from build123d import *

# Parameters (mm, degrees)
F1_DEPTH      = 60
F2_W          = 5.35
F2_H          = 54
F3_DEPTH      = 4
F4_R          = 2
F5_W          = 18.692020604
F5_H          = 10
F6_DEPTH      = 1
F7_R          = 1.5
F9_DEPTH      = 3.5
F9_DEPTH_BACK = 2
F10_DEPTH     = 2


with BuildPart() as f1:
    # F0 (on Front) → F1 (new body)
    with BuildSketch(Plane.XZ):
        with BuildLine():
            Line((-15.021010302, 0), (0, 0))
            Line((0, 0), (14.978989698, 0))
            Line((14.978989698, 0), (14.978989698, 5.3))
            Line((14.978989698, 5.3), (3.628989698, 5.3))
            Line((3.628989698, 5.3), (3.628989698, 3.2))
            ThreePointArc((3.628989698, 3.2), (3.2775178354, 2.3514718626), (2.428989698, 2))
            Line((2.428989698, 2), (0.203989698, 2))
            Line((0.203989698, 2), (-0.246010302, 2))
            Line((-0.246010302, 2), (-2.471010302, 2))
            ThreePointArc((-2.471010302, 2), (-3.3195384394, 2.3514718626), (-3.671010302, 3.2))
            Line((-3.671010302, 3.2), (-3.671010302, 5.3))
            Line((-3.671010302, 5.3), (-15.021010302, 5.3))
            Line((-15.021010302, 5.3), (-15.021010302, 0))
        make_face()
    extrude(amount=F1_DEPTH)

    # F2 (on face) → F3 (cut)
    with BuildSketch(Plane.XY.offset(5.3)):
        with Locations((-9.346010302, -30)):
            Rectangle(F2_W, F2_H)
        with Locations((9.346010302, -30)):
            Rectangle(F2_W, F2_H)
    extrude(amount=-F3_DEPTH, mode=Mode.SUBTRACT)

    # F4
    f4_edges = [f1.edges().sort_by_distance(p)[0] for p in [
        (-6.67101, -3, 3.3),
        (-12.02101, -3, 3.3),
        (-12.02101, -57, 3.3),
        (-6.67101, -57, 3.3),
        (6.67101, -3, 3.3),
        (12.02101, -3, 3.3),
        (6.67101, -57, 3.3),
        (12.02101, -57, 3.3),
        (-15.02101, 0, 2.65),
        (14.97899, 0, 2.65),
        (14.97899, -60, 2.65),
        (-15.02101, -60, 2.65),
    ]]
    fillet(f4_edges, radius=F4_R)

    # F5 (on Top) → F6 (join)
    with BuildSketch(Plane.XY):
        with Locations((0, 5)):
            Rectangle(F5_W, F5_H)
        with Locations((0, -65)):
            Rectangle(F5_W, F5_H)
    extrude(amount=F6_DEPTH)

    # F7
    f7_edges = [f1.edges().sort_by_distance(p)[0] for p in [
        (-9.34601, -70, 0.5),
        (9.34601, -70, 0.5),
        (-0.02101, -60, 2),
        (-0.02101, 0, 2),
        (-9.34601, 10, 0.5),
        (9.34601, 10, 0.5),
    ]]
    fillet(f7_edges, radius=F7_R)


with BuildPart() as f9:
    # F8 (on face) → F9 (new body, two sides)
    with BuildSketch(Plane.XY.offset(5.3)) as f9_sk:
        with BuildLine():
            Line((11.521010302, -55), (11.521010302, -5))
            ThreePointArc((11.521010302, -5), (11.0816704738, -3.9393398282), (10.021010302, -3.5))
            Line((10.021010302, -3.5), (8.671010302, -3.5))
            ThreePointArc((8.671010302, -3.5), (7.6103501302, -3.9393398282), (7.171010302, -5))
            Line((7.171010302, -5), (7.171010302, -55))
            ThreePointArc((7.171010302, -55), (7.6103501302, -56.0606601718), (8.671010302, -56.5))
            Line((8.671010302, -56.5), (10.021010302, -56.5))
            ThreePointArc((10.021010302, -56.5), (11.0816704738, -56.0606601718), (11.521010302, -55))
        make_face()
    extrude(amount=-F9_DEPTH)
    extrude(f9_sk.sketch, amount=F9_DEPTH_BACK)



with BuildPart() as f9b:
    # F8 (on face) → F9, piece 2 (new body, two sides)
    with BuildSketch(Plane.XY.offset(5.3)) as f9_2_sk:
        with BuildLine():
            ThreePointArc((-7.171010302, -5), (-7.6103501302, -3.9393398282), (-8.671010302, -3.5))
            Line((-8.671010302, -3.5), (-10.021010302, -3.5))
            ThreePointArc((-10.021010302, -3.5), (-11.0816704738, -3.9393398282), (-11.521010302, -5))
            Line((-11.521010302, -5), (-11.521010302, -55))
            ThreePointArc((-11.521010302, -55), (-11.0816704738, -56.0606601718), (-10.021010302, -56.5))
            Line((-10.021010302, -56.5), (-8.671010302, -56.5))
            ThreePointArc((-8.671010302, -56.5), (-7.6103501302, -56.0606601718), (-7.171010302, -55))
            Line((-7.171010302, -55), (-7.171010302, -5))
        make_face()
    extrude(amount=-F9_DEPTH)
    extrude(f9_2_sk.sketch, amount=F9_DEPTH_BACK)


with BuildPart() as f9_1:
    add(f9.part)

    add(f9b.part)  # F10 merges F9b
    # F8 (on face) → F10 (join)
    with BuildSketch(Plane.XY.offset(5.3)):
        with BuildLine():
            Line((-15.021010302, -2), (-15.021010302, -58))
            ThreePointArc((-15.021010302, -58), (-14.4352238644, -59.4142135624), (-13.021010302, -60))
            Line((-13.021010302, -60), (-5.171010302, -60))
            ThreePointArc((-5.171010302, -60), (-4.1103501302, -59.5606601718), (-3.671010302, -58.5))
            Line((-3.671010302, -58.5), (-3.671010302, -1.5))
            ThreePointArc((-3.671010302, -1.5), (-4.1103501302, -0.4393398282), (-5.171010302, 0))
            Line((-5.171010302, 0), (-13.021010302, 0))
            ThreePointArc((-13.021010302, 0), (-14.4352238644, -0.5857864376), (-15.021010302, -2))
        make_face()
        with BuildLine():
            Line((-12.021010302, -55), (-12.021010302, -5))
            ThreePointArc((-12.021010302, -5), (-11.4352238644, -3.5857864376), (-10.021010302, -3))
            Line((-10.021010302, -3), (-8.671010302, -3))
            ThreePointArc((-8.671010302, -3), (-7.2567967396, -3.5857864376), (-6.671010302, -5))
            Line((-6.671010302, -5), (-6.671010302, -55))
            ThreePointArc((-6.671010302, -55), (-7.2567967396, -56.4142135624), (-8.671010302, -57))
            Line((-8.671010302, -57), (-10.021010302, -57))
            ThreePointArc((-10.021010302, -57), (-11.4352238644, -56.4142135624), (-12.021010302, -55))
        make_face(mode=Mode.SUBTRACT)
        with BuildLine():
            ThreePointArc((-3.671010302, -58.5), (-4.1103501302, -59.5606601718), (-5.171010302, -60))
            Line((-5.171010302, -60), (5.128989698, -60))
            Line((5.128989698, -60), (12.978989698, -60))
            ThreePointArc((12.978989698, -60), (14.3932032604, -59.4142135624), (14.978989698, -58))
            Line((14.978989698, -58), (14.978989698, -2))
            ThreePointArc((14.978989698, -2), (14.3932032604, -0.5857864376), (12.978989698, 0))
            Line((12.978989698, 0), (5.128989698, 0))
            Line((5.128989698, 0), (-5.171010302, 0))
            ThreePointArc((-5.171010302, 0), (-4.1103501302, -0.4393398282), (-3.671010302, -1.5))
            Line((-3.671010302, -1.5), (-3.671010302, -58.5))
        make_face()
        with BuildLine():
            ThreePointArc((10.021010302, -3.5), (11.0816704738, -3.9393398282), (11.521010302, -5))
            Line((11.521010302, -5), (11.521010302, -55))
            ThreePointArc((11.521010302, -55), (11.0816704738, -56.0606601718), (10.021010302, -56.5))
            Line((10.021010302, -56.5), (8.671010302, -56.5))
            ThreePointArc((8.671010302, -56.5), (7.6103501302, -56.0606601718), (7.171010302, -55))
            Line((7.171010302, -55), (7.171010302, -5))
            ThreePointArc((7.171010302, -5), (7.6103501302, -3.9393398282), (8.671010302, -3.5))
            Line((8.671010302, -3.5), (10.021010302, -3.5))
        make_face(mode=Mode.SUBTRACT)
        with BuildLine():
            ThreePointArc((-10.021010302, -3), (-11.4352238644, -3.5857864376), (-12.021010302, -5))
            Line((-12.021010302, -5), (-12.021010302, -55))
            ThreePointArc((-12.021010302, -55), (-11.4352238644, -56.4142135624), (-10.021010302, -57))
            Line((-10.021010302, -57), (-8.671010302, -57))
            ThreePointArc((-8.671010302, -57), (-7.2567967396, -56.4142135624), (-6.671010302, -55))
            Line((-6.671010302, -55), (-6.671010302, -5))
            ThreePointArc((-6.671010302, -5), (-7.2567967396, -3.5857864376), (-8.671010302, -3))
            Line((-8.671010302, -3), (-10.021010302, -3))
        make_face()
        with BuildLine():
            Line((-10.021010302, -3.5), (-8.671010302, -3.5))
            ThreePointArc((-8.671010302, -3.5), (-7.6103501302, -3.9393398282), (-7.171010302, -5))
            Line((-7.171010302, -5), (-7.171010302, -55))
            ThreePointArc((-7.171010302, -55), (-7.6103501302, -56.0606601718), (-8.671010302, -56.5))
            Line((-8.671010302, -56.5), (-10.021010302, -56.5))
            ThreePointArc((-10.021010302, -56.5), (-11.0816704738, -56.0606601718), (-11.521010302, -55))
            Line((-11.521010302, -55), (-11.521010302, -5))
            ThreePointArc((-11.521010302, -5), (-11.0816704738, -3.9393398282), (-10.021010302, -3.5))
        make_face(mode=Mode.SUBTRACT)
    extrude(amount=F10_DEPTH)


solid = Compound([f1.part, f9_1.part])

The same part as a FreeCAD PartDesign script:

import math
import FreeCAD as App
import Part
import Sketcher

V = App.Vector


def edges_at(feature, points):
    """Names of the edges that pass closest to the given points."""
    edges = feature.Shape.Edges
    near = lambda p: min(range(len(edges)), key=lambda i: edges[i].distToShape(Part.Vertex(*p))[0])
    return sorted({f"Edge{near(p) + 1}" for p in points})

doc = App.newDocument("Part")
params = doc.addObject("Spreadsheet::Sheet", "Params")
for row, (alias, value) in enumerate([
    ("sketch1_radius", "1.2 mm"),
    ("sketch1_width", "30 mm"),
    ("sketch1_width2", "4.9 mm"),
    ("sketch1_height", "5.3 mm"),
    ("sketch1_height2", "2.1 mm"),
    ("pad1_length", "60 mm"),
    ("sketch2_height", "54 mm"),
    ("sketch2_width", "5.35 mm"),
    ("pocket1_length", "4 mm"),
    ("fillet_radius", "2 mm"),
    ("sketch3_height", "10 mm"),
    ("pad2_length", "1 mm"),
    ("fillet2_radius", "1.5 mm"),
    ("sketch4_radius", "1.5 mm"),
    ("sketch4_height", "50 mm"),
    ("sketch4_width", "1.35 mm"),
    ("pad3_length", "3.5 mm"),
    ("pad3_length2", "2 mm"),
    ("sketch5_radius", "1.5 mm"),
    ("sketch5_height", "50 mm"),
    ("sketch5_width", "1.35 mm"),
    ("pad4_length", "3.5 mm"),
    ("pad4_length2", "2 mm"),
    ("sketch6_radius", "2 mm"),
    ("sketch6_radius2", "1.5 mm"),
    ("sketch6_width", "26 mm"),
    ("sketch6_height", "56 mm"),
    ("sketch6_height2", "50 mm"),
    ("pad5_length", "2 mm"),
], start=1):
    params.set(f"A{row}", alias)
    params.set(f"B{row}", "=" + value)
    params.setAlias(f"B{row}", alias)

body = doc.addObject("PartDesign::Body", "Body")

# Sketch on XZ plane
sketch1 = body.newObject("Sketcher::SketchObject", "Sketch")
sketch1.AttachmentSupport = (doc.getObject("XZ_Plane"), [""])
sketch1.MapMode = "FlatFace"
sketch1.addGeometry(Part.LineSegment(V(-15.02101, 0, 0), V(14.97899, 0, 0)), False)
sketch1.addGeometry(Part.LineSegment(V(14.97899, 0, 0), V(14.97899, 5.3, 0)), False)
sketch1.addGeometry(Part.LineSegment(V(14.97899, 5.3, 0), V(3.62899, 5.3, 0)), False)
sketch1.addGeometry(Part.LineSegment(V(3.62899, 5.3, 0), V(3.62899, 3.2, 0)), False)
sketch1.addGeometry(Part.ArcOfCircle(Part.Circle(V(2.42899, 3.2, 0), V(0, 0, 1), 1.2), math.radians(-90), math.radians(0)), False)
sketch1.addGeometry(Part.LineSegment(V(2.42899, 2, 0), V(-2.47101, 2, 0)), False)
sketch1.addGeometry(Part.ArcOfCircle(Part.Circle(V(-2.47101, 3.2, 0), V(0, 0, 1), 1.2), math.radians(180), math.radians(270)), False)
sketch1.addGeometry(Part.LineSegment(V(-3.67101, 3.2, 0), V(-3.67101, 5.3, 0)), False)
sketch1.addGeometry(Part.LineSegment(V(-3.67101, 5.3, 0), V(-15.02101, 5.3, 0)), False)
sketch1.addGeometry(Part.LineSegment(V(-15.02101, 5.3, 0), V(-15.02101, 0, 0)), False)
sketch1.addConstraint(Sketcher.Constraint("Coincident", 0, 2, 1, 1))
sketch1.addConstraint(Sketcher.Constraint("Coincident", 1, 2, 2, 1))
sketch1.addConstraint(Sketcher.Constraint("Coincident", 2, 2, 3, 1))
sketch1.addConstraint(Sketcher.Constraint("Tangent", 3, 2, 4, 2))
sketch1.addConstraint(Sketcher.Constraint("Tangent", 4, 1, 5, 1))
sketch1.addConstraint(Sketcher.Constraint("Tangent", 5, 2, 6, 2))
sketch1.addConstraint(Sketcher.Constraint("Tangent", 6, 1, 7, 1))
sketch1.addConstraint(Sketcher.Constraint("Coincident", 7, 2, 8, 1))
sketch1.addConstraint(Sketcher.Constraint("Coincident", 8, 2, 9, 1))
sketch1.addConstraint(Sketcher.Constraint("Coincident", 9, 2, 0, 1))
sketch1.addConstraint(Sketcher.Constraint("Horizontal", 0))
sketch1.addConstraint(Sketcher.Constraint("Vertical", 1))
sketch1.addConstraint(Sketcher.Constraint("Horizontal", 2))
sketch1.addConstraint(Sketcher.Constraint("Vertical", 3))
sketch1.addConstraint(Sketcher.Constraint("Horizontal", 5))
sketch1.addConstraint(Sketcher.Constraint("Vertical", 7))
sketch1.addConstraint(Sketcher.Constraint("Horizontal", 8))
sketch1.addConstraint(Sketcher.Constraint("Vertical", 9))
sketch1.addConstraint(Sketcher.Constraint("Equal", 4, 6))
sketch1.addConstraint(Sketcher.Constraint("PointOnObject", 0, 2, -1))
sketch1.addConstraint(Sketcher.Constraint("Horizontal", 2, 2, 7, 2))
sketch1.addConstraint(Sketcher.Constraint("Equal", 2, 8))
sketch1.addConstraint(Sketcher.Constraint("Radius", 4, 1.2))
sketch1.addConstraint(Sketcher.Constraint("DistanceX", 0, 1, 0, 2, 30.0))
sketch1.addConstraint(Sketcher.Constraint("DistanceX", 5, 2, 5, 1, 4.9))
sketch1.addConstraint(Sketcher.Constraint("DistanceY", 1, 1, 1, 2, 5.3))
sketch1.addConstraint(Sketcher.Constraint("DistanceY", 3, 2, 3, 1, 2.1))
sketch1.addConstraint(Sketcher.Constraint("DistanceX", -1, 1, 4, 3, 2.42899))
sketch1.setExpression("Constraints[22]", "Params.sketch1_radius")
sketch1.setExpression("Constraints[23]", "Params.sketch1_width")
sketch1.setExpression("Constraints[24]", "Params.sketch1_width2")
sketch1.setExpression("Constraints[25]", "Params.sketch1_height")
sketch1.setExpression("Constraints[26]", "Params.sketch1_height2")
pad1 = body.newObject("PartDesign::Pad", "Pad")
pad1.Profile = sketch1
pad1.setExpression("Length", "Params.pad1_length")

# Sketch on XY plane
sketch2 = body.newObject("Sketcher::SketchObject", "Sketch001")
sketch2.AttachmentSupport = (doc.getObject("XY_Plane"), [""])
sketch2.MapMode = "FlatFace"
sketch2.AttachmentOffset = App.Placement(V(0, 0, 5.3), App.Rotation())
sketch2.addGeometry(Part.LineSegment(V(-12.02101, -3, 0), V(-12.02101, -57, 0)), False)
sketch2.addGeometry(Part.LineSegment(V(-12.02101, -57, 0), V(-6.67101, -57, 0)), False)
sketch2.addGeometry(Part.LineSegment(V(-6.67101, -57, 0), V(-6.67101, -3, 0)), False)
sketch2.addGeometry(Part.LineSegment(V(-6.67101, -3, 0), V(-12.02101, -3, 0)), False)
sketch2.addGeometry(Part.LineSegment(V(6.67101, -3, 0), V(6.67101, -57, 0)), False)
sketch2.addGeometry(Part.LineSegment(V(6.67101, -57, 0), V(12.02101, -57, 0)), False)
sketch2.addGeometry(Part.LineSegment(V(12.02101, -57, 0), V(12.02101, -3, 0)), False)
sketch2.addGeometry(Part.LineSegment(V(12.02101, -3, 0), V(6.67101, -3, 0)), False)
sketch2.addConstraint(Sketcher.Constraint("Coincident", 0, 2, 1, 1))
sketch2.addConstraint(Sketcher.Constraint("Coincident", 1, 2, 2, 1))
sketch2.addConstraint(Sketcher.Constraint("Coincident", 2, 2, 3, 1))
sketch2.addConstraint(Sketcher.Constraint("Coincident", 3, 2, 0, 1))
sketch2.addConstraint(Sketcher.Constraint("Coincident", 4, 2, 5, 1))
sketch2.addConstraint(Sketcher.Constraint("Coincident", 5, 2, 6, 1))
sketch2.addConstraint(Sketcher.Constraint("Coincident", 6, 2, 7, 1))
sketch2.addConstraint(Sketcher.Constraint("Coincident", 7, 2, 4, 1))
sketch2.addConstraint(Sketcher.Constraint("Vertical", 0))
sketch2.addConstraint(Sketcher.Constraint("Horizontal", 1))
sketch2.addConstraint(Sketcher.Constraint("Vertical", 2))
sketch2.addConstraint(Sketcher.Constraint("Horizontal", 3))
sketch2.addConstraint(Sketcher.Constraint("Vertical", 4))
sketch2.addConstraint(Sketcher.Constraint("Horizontal", 5))
sketch2.addConstraint(Sketcher.Constraint("Vertical", 6))
sketch2.addConstraint(Sketcher.Constraint("Horizontal", 7))
sketch2.addConstraint(Sketcher.Constraint("Symmetric", 1, 2, 4, 2, -2))
sketch2.addConstraint(Sketcher.Constraint("Symmetric", 3, 2, 6, 2, -2))
sketch2.addConstraint(Sketcher.Constraint("DistanceY", 0, 2, 0, 1, 54.0))
sketch2.addConstraint(Sketcher.Constraint("DistanceY", 0, 2, -1, 1, 57.0))
sketch2.addConstraint(Sketcher.Constraint("DistanceX", 1, 1, 1, 2, 5.35))
sketch2.addConstraint(Sketcher.Constraint("DistanceX", 0, 2, -1, 1, 12.02101))
sketch2.setExpression("Constraints[18]", "Params.sketch2_height")
sketch2.setExpression("Constraints[20]", "Params.sketch2_width")
pocket1 = body.newObject("PartDesign::Pocket", "Pocket")
pocket1.Profile = sketch2
pocket1.setExpression("Length", "Params.pocket1_length")
doc.recompute()

fillet = body.newObject("PartDesign::Fillet", "Fillet")
fillet.Base = (pocket1, edges_at(pocket1, [
    (-6.671, -3, 3.3),
    (-12.021, -3, 3.3),
    (-12.021, -57, 3.3),
    (-6.671, -57, 3.3),
    (6.671, -3, 3.3),
    (12.021, -3, 3.3),
    (6.671, -57, 3.3),
    (12.021, -57, 3.3),
    (-15.021, 0, 2.65),
    (14.979, 0, 2.65),
    (14.979, -60, 2.65),
    (-15.021, -60, 2.65),
]))
fillet.setExpression("Radius", "Params.fillet_radius")

# Sketch on XY plane
sketch3 = body.newObject("Sketcher::SketchObject", "Sketch002")
sketch3.AttachmentSupport = (doc.getObject("XY_Plane"), [""])
sketch3.MapMode = "FlatFace"
sketch3.addGeometry(Part.LineSegment(V(-9.34601, 10, 0), V(-9.34601, 0, 0)), False)
sketch3.addGeometry(Part.LineSegment(V(-9.34601, 0, 0), V(9.34601, 0, 0)), False)
sketch3.addGeometry(Part.LineSegment(V(9.34601, 0, 0), V(9.34601, 10, 0)), False)
sketch3.addGeometry(Part.LineSegment(V(9.34601, 10, 0), V(-9.34601, 10, 0)), False)
sketch3.addGeometry(Part.LineSegment(V(-9.34601, -60, 0), V(-9.34601, -70, 0)), False)
sketch3.addGeometry(Part.LineSegment(V(-9.34601, -70, 0), V(9.34601, -70, 0)), False)
sketch3.addGeometry(Part.LineSegment(V(9.34601, -70, 0), V(9.34601, -60, 0)), False)
sketch3.addGeometry(Part.LineSegment(V(9.34601, -60, 0), V(-9.34601, -60, 0)), False)
sketch3.addConstraint(Sketcher.Constraint("Coincident", 0, 2, 1, 1))
sketch3.addConstraint(Sketcher.Constraint("Coincident", 1, 2, 2, 1))
sketch3.addConstraint(Sketcher.Constraint("Coincident", 2, 2, 3, 1))
sketch3.addConstraint(Sketcher.Constraint("Coincident", 3, 2, 0, 1))
sketch3.addConstraint(Sketcher.Constraint("Coincident", 4, 2, 5, 1))
sketch3.addConstraint(Sketcher.Constraint("Coincident", 5, 2, 6, 1))
sketch3.addConstraint(Sketcher.Constraint("Coincident", 6, 2, 7, 1))
sketch3.addConstraint(Sketcher.Constraint("Coincident", 7, 2, 4, 1))
sketch3.addConstraint(Sketcher.Constraint("Vertical", 0))
sketch3.addConstraint(Sketcher.Constraint("Horizontal", 1))
sketch3.addConstraint(Sketcher.Constraint("Vertical", 2))
sketch3.addConstraint(Sketcher.Constraint("Horizontal", 3))
sketch3.addConstraint(Sketcher.Constraint("Vertical", 4))
sketch3.addConstraint(Sketcher.Constraint("Horizontal", 5))
sketch3.addConstraint(Sketcher.Constraint("Vertical", 6))
sketch3.addConstraint(Sketcher.Constraint("Horizontal", 7))
sketch3.addConstraint(Sketcher.Constraint("Symmetric", 0, 2, 1, 2, -1, 1))
sketch3.addConstraint(Sketcher.Constraint("Vertical", 3, 2, 4, 2))
sketch3.addConstraint(Sketcher.Constraint("Vertical", 2, 2, 5, 2))
sketch3.addConstraint(Sketcher.Constraint("Equal", 2, 4))
sketch3.addConstraint(Sketcher.Constraint("DistanceY", 0, 2, 0, 1, 10.0))
sketch3.addConstraint(Sketcher.Constraint("DistanceY", 4, 2, -1, 1, 70.0))
sketch3.addConstraint(Sketcher.Constraint("DistanceX", 1, 1, 1, 2, 18.692021))
sketch3.setExpression("Constraints[20]", "Params.sketch3_height")
pad2 = body.newObject("PartDesign::Pad", "Pad001")
pad2.Profile = sketch3
pad2.setExpression("Length", "Params.pad2_length")
doc.recompute()

fillet2 = body.newObject("PartDesign::Fillet", "Fillet001")
fillet2.Base = (pad2, edges_at(pad2, [
    (-9.346, -70, 0.5),
    (9.346, -70, 0.5),
    (-0.021, -60, 2),
    (-0.021, 0, 2),
    (-9.346, 10, 0.5),
    (9.346, 10, 0.5),
]))
fillet2.setExpression("Radius", "Params.fillet2_radius")
body2 = doc.addObject("PartDesign::Body", "Body001")

# Sketch on XY plane
sketch4 = body2.newObject("Sketcher::SketchObject", "Sketch003")
sketch4.AttachmentSupport = (doc.getObject("XY_Plane001"), [""])
sketch4.MapMode = "FlatFace"
sketch4.AttachmentOffset = App.Placement(V(0, 0, 5.3), App.Rotation())
sketch4.addGeometry(Part.LineSegment(V(11.52101, -55, 0), V(11.52101, -5, 0)), False)
sketch4.addGeometry(Part.ArcOfCircle(Part.Circle(V(10.02101, -5, 0), V(0, 0, 1), 1.5), math.radians(0), math.radians(90)), False)
sketch4.addGeometry(Part.LineSegment(V(10.02101, -3.5, 0), V(8.67101, -3.5, 0)), False)
sketch4.addGeometry(Part.ArcOfCircle(Part.Circle(V(8.67101, -5, 0), V(0, 0, 1), 1.5), math.radians(90), math.radians(180)), False)
sketch4.addGeometry(Part.LineSegment(V(7.17101, -5, 0), V(7.17101, -55, 0)), False)
sketch4.addGeometry(Part.ArcOfCircle(Part.Circle(V(8.67101, -55, 0), V(0, 0, 1), 1.5), math.radians(180), math.radians(270)), False)
sketch4.addGeometry(Part.LineSegment(V(8.67101, -56.5, 0), V(10.02101, -56.5, 0)), False)
sketch4.addGeometry(Part.ArcOfCircle(Part.Circle(V(10.02101, -55, 0), V(0, 0, 1), 1.5), math.radians(-90), math.radians(0)), False)
sketch4.addConstraint(Sketcher.Constraint("Tangent", 0, 2, 1, 1))
sketch4.addConstraint(Sketcher.Constraint("Tangent", 1, 2, 2, 1))
sketch4.addConstraint(Sketcher.Constraint("Tangent", 2, 2, 3, 1))
sketch4.addConstraint(Sketcher.Constraint("Tangent", 3, 2, 4, 1))
sketch4.addConstraint(Sketcher.Constraint("Tangent", 4, 2, 5, 1))
sketch4.addConstraint(Sketcher.Constraint("Tangent", 5, 2, 6, 1))
sketch4.addConstraint(Sketcher.Constraint("Tangent", 6, 2, 7, 1))
sketch4.addConstraint(Sketcher.Constraint("Tangent", 7, 2, 0, 1))
sketch4.addConstraint(Sketcher.Constraint("Vertical", 0))
sketch4.addConstraint(Sketcher.Constraint("Horizontal", 2))
sketch4.addConstraint(Sketcher.Constraint("Vertical", 4))
sketch4.addConstraint(Sketcher.Constraint("Horizontal", 6))
sketch4.addConstraint(Sketcher.Constraint("Equal", 1, 3))
sketch4.addConstraint(Sketcher.Constraint("Equal", 3, 5))
sketch4.addConstraint(Sketcher.Constraint("Equal", 5, 7))
sketch4.addConstraint(Sketcher.Constraint("Radius", 1, 1.5))
sketch4.addConstraint(Sketcher.Constraint("DistanceY", 0, 1, 0, 2, 50.0))
sketch4.addConstraint(Sketcher.Constraint("DistanceY", 1, 3, -1, 1, 5.0))
sketch4.addConstraint(Sketcher.Constraint("DistanceX", 2, 2, 2, 1, 1.35))
sketch4.addConstraint(Sketcher.Constraint("DistanceX", -1, 1, 1, 3, 10.02101))
sketch4.setExpression("Constraints[15]", "Params.sketch4_radius")
sketch4.setExpression("Constraints[16]", "Params.sketch4_height")
sketch4.setExpression("Constraints[18]", "Params.sketch4_width")
pad3 = body2.newObject("PartDesign::Pad", "Pad002")
pad3.Profile = sketch4
pad3.Type = "TwoLengths"
pad3.setExpression("Length", "Params.pad3_length")
pad3.setExpression("Length2", "Params.pad3_length2")
pad3.Reversed = True
body3 = doc.addObject("PartDesign::Body", "Body002")

# Sketch on XY plane
sketch5 = body3.newObject("Sketcher::SketchObject", "Sketch004")
sketch5.AttachmentSupport = (doc.getObject("XY_Plane002"), [""])
sketch5.MapMode = "FlatFace"
sketch5.AttachmentOffset = App.Placement(V(0, 0, 5.3), App.Rotation())
sketch5.addGeometry(Part.ArcOfCircle(Part.Circle(V(-8.67101, -5, 0), V(0, 0, 1), 1.5), math.radians(0), math.radians(90)), False)
sketch5.addGeometry(Part.LineSegment(V(-8.67101, -3.5, 0), V(-10.02101, -3.5, 0)), False)
sketch5.addGeometry(Part.ArcOfCircle(Part.Circle(V(-10.02101, -5, 0), V(0, 0, 1), 1.5), math.radians(90), math.radians(180)), False)
sketch5.addGeometry(Part.LineSegment(V(-11.52101, -5, 0), V(-11.52101, -55, 0)), False)
sketch5.addGeometry(Part.ArcOfCircle(Part.Circle(V(-10.02101, -55, 0), V(0, 0, 1), 1.5), math.radians(180), math.radians(270)), False)
sketch5.addGeometry(Part.LineSegment(V(-10.02101, -56.5, 0), V(-8.67101, -56.5, 0)), False)
sketch5.addGeometry(Part.ArcOfCircle(Part.Circle(V(-8.67101, -55, 0), V(0, 0, 1), 1.5), math.radians(-90), math.radians(0)), False)
sketch5.addGeometry(Part.LineSegment(V(-7.17101, -55, 0), V(-7.17101, -5, 0)), False)
sketch5.addConstraint(Sketcher.Constraint("Tangent", 0, 2, 1, 1))
sketch5.addConstraint(Sketcher.Constraint("Tangent", 1, 2, 2, 1))
sketch5.addConstraint(Sketcher.Constraint("Tangent", 2, 2, 3, 1))
sketch5.addConstraint(Sketcher.Constraint("Tangent", 3, 2, 4, 1))
sketch5.addConstraint(Sketcher.Constraint("Tangent", 4, 2, 5, 1))
sketch5.addConstraint(Sketcher.Constraint("Tangent", 5, 2, 6, 1))
sketch5.addConstraint(Sketcher.Constraint("Tangent", 6, 2, 7, 1))
sketch5.addConstraint(Sketcher.Constraint("Tangent", 7, 2, 0, 1))
sketch5.addConstraint(Sketcher.Constraint("Horizontal", 1))
sketch5.addConstraint(Sketcher.Constraint("Vertical", 3))
sketch5.addConstraint(Sketcher.Constraint("Horizontal", 5))
sketch5.addConstraint(Sketcher.Constraint("Vertical", 7))
sketch5.addConstraint(Sketcher.Constraint("Equal", 0, 2))
sketch5.addConstraint(Sketcher.Constraint("Equal", 2, 4))
sketch5.addConstraint(Sketcher.Constraint("Equal", 4, 6))
sketch5.addConstraint(Sketcher.Constraint("Radius", 0, 1.5))
sketch5.addConstraint(Sketcher.Constraint("DistanceY", 3, 2, 3, 1, 50.0))
sketch5.addConstraint(Sketcher.Constraint("DistanceY", 0, 3, -1, 1, 5.0))
sketch5.addConstraint(Sketcher.Constraint("DistanceX", 1, 2, 1, 1, 1.35))
sketch5.addConstraint(Sketcher.Constraint("DistanceX", 0, 3, -1, 1, 8.67101))
sketch5.setExpression("Constraints[15]", "Params.sketch5_radius")
sketch5.setExpression("Constraints[16]", "Params.sketch5_height")
sketch5.setExpression("Constraints[18]", "Params.sketch5_width")
pad4 = body3.newObject("PartDesign::Pad", "Pad003")
pad4.Profile = sketch5
pad4.Type = "TwoLengths"
pad4.setExpression("Length", "Params.pad4_length")
pad4.setExpression("Length2", "Params.pad4_length2")
pad4.Reversed = True
body2.AllowCompound = True
doc.recompute()

boolean = body2.newObject("PartDesign::Boolean", "Boolean")
boolean.Type = "Fuse"
boolean.addObjects([body3])

# Sketch on XY plane
sketch6 = body2.newObject("Sketcher::SketchObject", "Sketch005")
sketch6.AttachmentSupport = (doc.getObject("XY_Plane001"), [""])
sketch6.MapMode = "FlatFace"
sketch6.AttachmentOffset = App.Placement(V(0, 0, 5.3), App.Rotation())
sketch6.addGeometry(Part.LineSegment(V(-15.02101, -2, 0), V(-15.02101, -58, 0)), False)
sketch6.addGeometry(Part.ArcOfCircle(Part.Circle(V(-13.02101, -58, 0), V(0, 0, 1), 2), math.radians(180), math.radians(270)), False)
sketch6.addGeometry(Part.LineSegment(V(-13.02101, -60, 0), V(12.97899, -60, 0)), False)
sketch6.addGeometry(Part.ArcOfCircle(Part.Circle(V(12.97899, -58, 0), V(0, 0, 1), 2), math.radians(-90), math.radians(0)), False)
sketch6.addGeometry(Part.LineSegment(V(14.97899, -58, 0), V(14.97899, -2, 0)), False)
sketch6.addGeometry(Part.ArcOfCircle(Part.Circle(V(12.97899, -2, 0), V(0, 0, 1), 2), math.radians(0), math.radians(90)), False)
sketch6.addGeometry(Part.LineSegment(V(12.97899, 0, 0), V(-13.02101, 0, 0)), False)
sketch6.addGeometry(Part.ArcOfCircle(Part.Circle(V(-13.02101, -2, 0), V(0, 0, 1), 2), math.radians(90), math.radians(180)), False)
sketch6.addGeometry(Part.ArcOfCircle(Part.Circle(V(-10.02101, -5, 0), V(0, 0, 1), 1.5), math.radians(90), math.radians(180)), False)
sketch6.addGeometry(Part.LineSegment(V(-10.02101, -3.5, 0), V(-8.67101, -3.5, 0)), False)
sketch6.addGeometry(Part.ArcOfCircle(Part.Circle(V(-8.67101, -5, 0), V(0, 0, 1), 1.5), math.radians(0), math.radians(90)), False)
sketch6.addGeometry(Part.LineSegment(V(-7.17101, -5, 0), V(-7.17101, -55, 0)), False)
sketch6.addGeometry(Part.ArcOfCircle(Part.Circle(V(-8.67101, -55, 0), V(0, 0, 1), 1.5), math.radians(-90), math.radians(0)), False)
sketch6.addGeometry(Part.LineSegment(V(-8.67101, -56.5, 0), V(-10.02101, -56.5, 0)), False)
sketch6.addGeometry(Part.ArcOfCircle(Part.Circle(V(-10.02101, -55, 0), V(0, 0, 1), 1.5), math.radians(180), math.radians(270)), False)
sketch6.addGeometry(Part.LineSegment(V(-11.52101, -55, 0), V(-11.52101, -5, 0)), False)
sketch6.addGeometry(Part.LineSegment(V(8.67101, -3.5, 0), V(10.02101, -3.5, 0)), False)
sketch6.addGeometry(Part.ArcOfCircle(Part.Circle(V(10.02101, -5, 0), V(0, 0, 1), 1.5), math.radians(0), math.radians(90)), False)
sketch6.addGeometry(Part.LineSegment(V(11.52101, -5, 0), V(11.52101, -55, 0)), False)
sketch6.addGeometry(Part.ArcOfCircle(Part.Circle(V(10.02101, -55, 0), V(0, 0, 1), 1.5), math.radians(-90), math.radians(0)), False)
sketch6.addGeometry(Part.LineSegment(V(10.02101, -56.5, 0), V(8.67101, -56.5, 0)), False)
sketch6.addGeometry(Part.ArcOfCircle(Part.Circle(V(8.67101, -55, 0), V(0, 0, 1), 1.5), math.radians(180), math.radians(270)), False)
sketch6.addGeometry(Part.LineSegment(V(7.17101, -55, 0), V(7.17101, -5, 0)), False)
sketch6.addGeometry(Part.ArcOfCircle(Part.Circle(V(8.67101, -5, 0), V(0, 0, 1), 1.5), math.radians(90), math.radians(180)), False)
sketch6.addConstraint(Sketcher.Constraint("Tangent", 0, 2, 1, 1))
sketch6.addConstraint(Sketcher.Constraint("Tangent", 1, 2, 2, 1))
sketch6.addConstraint(Sketcher.Constraint("Tangent", 2, 2, 3, 1))
sketch6.addConstraint(Sketcher.Constraint("Tangent", 3, 2, 4, 1))
sketch6.addConstraint(Sketcher.Constraint("Tangent", 4, 2, 5, 1))
sketch6.addConstraint(Sketcher.Constraint("Tangent", 5, 2, 6, 1))
sketch6.addConstraint(Sketcher.Constraint("Tangent", 6, 2, 7, 1))
sketch6.addConstraint(Sketcher.Constraint("Tangent", 7, 2, 0, 1))
sketch6.addConstraint(Sketcher.Constraint("Tangent", 8, 1, 9, 1))
sketch6.addConstraint(Sketcher.Constraint("Tangent", 9, 2, 10, 2))
sketch6.addConstraint(Sketcher.Constraint("Tangent", 10, 1, 11, 1))
sketch6.addConstraint(Sketcher.Constraint("Tangent", 11, 2, 12, 2))
sketch6.addConstraint(Sketcher.Constraint("Tangent", 12, 1, 13, 1))
sketch6.addConstraint(Sketcher.Constraint("Tangent", 13, 2, 14, 2))
sketch6.addConstraint(Sketcher.Constraint("Tangent", 14, 1, 15, 1))
sketch6.addConstraint(Sketcher.Constraint("Tangent", 15, 2, 8, 2))
sketch6.addConstraint(Sketcher.Constraint("Tangent", 16, 2, 17, 2))
sketch6.addConstraint(Sketcher.Constraint("Tangent", 17, 1, 18, 1))
sketch6.addConstraint(Sketcher.Constraint("Tangent", 18, 2, 19, 2))
sketch6.addConstraint(Sketcher.Constraint("Tangent", 19, 1, 20, 1))
sketch6.addConstraint(Sketcher.Constraint("Tangent", 20, 2, 21, 2))
sketch6.addConstraint(Sketcher.Constraint("Tangent", 21, 1, 22, 1))
sketch6.addConstraint(Sketcher.Constraint("Tangent", 22, 2, 23, 2))
sketch6.addConstraint(Sketcher.Constraint("Tangent", 23, 1, 16, 1))
sketch6.addConstraint(Sketcher.Constraint("Vertical", 0))
sketch6.addConstraint(Sketcher.Constraint("Horizontal", 2))
sketch6.addConstraint(Sketcher.Constraint("Vertical", 4))
sketch6.addConstraint(Sketcher.Constraint("Horizontal", 6))
sketch6.addConstraint(Sketcher.Constraint("Horizontal", 9))
sketch6.addConstraint(Sketcher.Constraint("Vertical", 11))
sketch6.addConstraint(Sketcher.Constraint("Horizontal", 13))
sketch6.addConstraint(Sketcher.Constraint("Vertical", 15))
sketch6.addConstraint(Sketcher.Constraint("Horizontal", 16))
sketch6.addConstraint(Sketcher.Constraint("Vertical", 18))
sketch6.addConstraint(Sketcher.Constraint("Horizontal", 20))
sketch6.addConstraint(Sketcher.Constraint("Vertical", 22))
sketch6.addConstraint(Sketcher.Constraint("Equal", 1, 3))
sketch6.addConstraint(Sketcher.Constraint("Equal", 3, 5))
sketch6.addConstraint(Sketcher.Constraint("Equal", 5, 7))
sketch6.addConstraint(Sketcher.Constraint("Equal", 8, 10))
sketch6.addConstraint(Sketcher.Constraint("Equal", 10, 12))
sketch6.addConstraint(Sketcher.Constraint("Equal", 12, 14))
sketch6.addConstraint(Sketcher.Constraint("Equal", 14, 17))
sketch6.addConstraint(Sketcher.Constraint("Equal", 17, 19))
sketch6.addConstraint(Sketcher.Constraint("Equal", 19, 21))
sketch6.addConstraint(Sketcher.Constraint("Equal", 21, 23))
sketch6.addConstraint(Sketcher.Constraint("Symmetric", 8, 3, 17, 3, -2))
sketch6.addConstraint(Sketcher.Constraint("Symmetric", 12, 3, 21, 3, -2))
sketch6.addConstraint(Sketcher.Constraint("PointOnObject", 5, 2, -1))
sketch6.addConstraint(Sketcher.Constraint("Radius", 1, 2.0))
sketch6.addConstraint(Sketcher.Constraint("Radius", 8, 1.5))
sketch6.addConstraint(Sketcher.Constraint("DistanceX", 2, 1, 2, 2, 26.0))
sketch6.addConstraint(Sketcher.Constraint("DistanceY", 0, 2, 0, 1, 56.0))
sketch6.addConstraint(Sketcher.Constraint("DistanceY", 11, 2, 11, 1, 50.0))
sketch6.addConstraint(Sketcher.Constraint("DistanceY", 8, 3, -1, 1, 5.0))
sketch6.addConstraint(Sketcher.Constraint("DistanceX", 7, 3, 8, 3, 3.0))
sketch6.addConstraint(Sketcher.Constraint("DistanceX", 9, 1, 9, 2, 1.35))
sketch6.addConstraint(Sketcher.Constraint("DistanceX", 1, 3, -1, 1, 13.02101))
sketch6.setExpression("Constraints[49]", "Params.sketch6_radius")
sketch6.setExpression("Constraints[50]", "Params.sketch6_radius2")
sketch6.setExpression("Constraints[51]", "Params.sketch6_width")
sketch6.setExpression("Constraints[52]", "Params.sketch6_height")
sketch6.setExpression("Constraints[53]", "Params.sketch6_height2")
pad5 = body2.newObject("PartDesign::Pad", "Pad004")
pad5.Profile = sketch6
pad5.setExpression("Length", "Params.pad5_length")

doc.recompute()
